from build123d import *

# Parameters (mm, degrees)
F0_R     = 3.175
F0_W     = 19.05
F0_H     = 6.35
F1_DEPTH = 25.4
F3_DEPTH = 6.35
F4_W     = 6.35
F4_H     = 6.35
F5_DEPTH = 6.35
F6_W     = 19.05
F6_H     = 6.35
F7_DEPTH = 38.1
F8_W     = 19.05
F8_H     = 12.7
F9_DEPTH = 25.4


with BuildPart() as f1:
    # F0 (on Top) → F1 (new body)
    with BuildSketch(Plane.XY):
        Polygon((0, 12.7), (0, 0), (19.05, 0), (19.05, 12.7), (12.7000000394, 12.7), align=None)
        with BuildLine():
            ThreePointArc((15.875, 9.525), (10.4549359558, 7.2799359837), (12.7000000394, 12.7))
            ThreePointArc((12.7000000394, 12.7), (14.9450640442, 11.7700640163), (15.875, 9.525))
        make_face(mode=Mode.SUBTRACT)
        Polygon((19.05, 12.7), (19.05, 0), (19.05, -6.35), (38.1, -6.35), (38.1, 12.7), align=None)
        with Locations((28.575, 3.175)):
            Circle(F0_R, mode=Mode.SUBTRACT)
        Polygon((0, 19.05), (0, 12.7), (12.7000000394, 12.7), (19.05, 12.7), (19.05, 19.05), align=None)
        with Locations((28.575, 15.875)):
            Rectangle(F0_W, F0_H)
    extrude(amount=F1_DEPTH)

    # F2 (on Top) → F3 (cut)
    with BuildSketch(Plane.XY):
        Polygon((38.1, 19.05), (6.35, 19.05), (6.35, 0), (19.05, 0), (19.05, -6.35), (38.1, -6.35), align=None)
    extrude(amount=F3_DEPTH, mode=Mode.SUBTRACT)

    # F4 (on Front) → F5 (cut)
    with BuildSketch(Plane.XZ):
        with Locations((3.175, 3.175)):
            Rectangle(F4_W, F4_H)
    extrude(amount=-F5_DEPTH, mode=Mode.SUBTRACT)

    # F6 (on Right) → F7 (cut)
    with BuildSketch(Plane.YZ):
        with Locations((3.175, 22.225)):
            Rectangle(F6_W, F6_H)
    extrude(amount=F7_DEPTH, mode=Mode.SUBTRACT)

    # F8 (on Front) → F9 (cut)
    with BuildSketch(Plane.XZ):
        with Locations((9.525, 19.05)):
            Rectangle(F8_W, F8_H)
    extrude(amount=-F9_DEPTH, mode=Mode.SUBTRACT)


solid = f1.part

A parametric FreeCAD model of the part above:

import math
import FreeCAD as App
import Part
import Sketcher
from FreeCAD import Vector
Q = App.Units.Quantity


def add_polygon(sketch, points):
    """Adds a closed chain of lines whose ends are joined by coincident constraints."""
    first, n = sketch.GeometryCount, len(points)
    for a, b in zip(points, points[1:] + points[:1]):
        sketch.addGeometry(Part.LineSegment(App.Vector(*a, 0), App.Vector(*b, 0)), False)
    for i in range(n):
        sketch.addConstraint(Sketcher.Constraint("Coincident", first + i, 2, first + (i + 1) % n, 1))

doc = App.newDocument("Part")
body = doc.addObject("PartDesign::Body", "Body")

# Sketch on XY plane
sketch1 = doc.addObject("Sketcher::SketchObject", "Sketch")
body.addObject(sketch1)
sketch1.AttachmentSupport = (doc.XY_Plane, [""])
sketch1.MapMode = "FlatFace"
add_polygon(sketch1, [(38.1, -6.3), (38.1, 19.1), (0, 19.1), (0, 0), (19.1, 0), (19.1, -6.3)])  # lines 0-5
sketch1.addGeometry(Part.Circle(Vector(28.6, 3.2, 0), Vector(0, 0, 1), 3.2), False)  # 6
sketch1.addGeometry(Part.ArcOfCircle(Part.Circle(Vector(12.7, 9.5, 0), Vector(0, 0, 1), 3.2), math.radians(90), math.radians(360)), False)  # 7
sketch1.addGeometry(Part.ArcOfCircle(Part.Circle(Vector(12.7, 9.5, 0), Vector(0, 0, 1), 3.2), math.radians(0), math.radians(90)), False)  # 8
sketch1.addConstraint([
    Sketcher.Constraint("Tangent", 7, 1, 8, 2),
    Sketcher.Constraint("Coincident", 8, 1, 7, 2),
    Sketcher.Constraint("Vertical", 0),
    Sketcher.Constraint("Horizontal", 1),
    Sketcher.Constraint("Vertical", 2),
    Sketcher.Constraint("Horizontal", 3),
    Sketcher.Constraint("Vertical", 4),
    Sketcher.Constraint("Horizontal", 5),
    Sketcher.Constraint("Coincident", 2, 2, -1, 1),
    Sketcher.Constraint("Equal", 6, 7),
    Sketcher.Constraint("Horizontal", 7, 3, 8, 1),
    Sketcher.Constraint("Vertical", 8, 3, 7, 1),
    Sketcher.Constraint("Equal", 3, 5),
    Sketcher.Constraint("Equal", 5, 2),
    Sketcher.Constraint("Diameter", 6, Q("0.25 in")),
    Sketcher.Constraint("DistanceY", 0, 1, 0, 2, Q("1 in")),
    Sketcher.Constraint("DistanceX", 1, 2, 1, 1, Q("1.5 in")),
    Sketcher.Constraint("DistanceX", 7, 3, 0, 2, Q("1 in")),
    Sketcher.Constraint("DistanceY", -1, 1, 7, 1, Q("0.5 in")),
    Sketcher.Constraint("DistanceX", 8, 1, 6, 3, Q("0.5 in")),
    Sketcher.Constraint("DistanceY", 6, 3, 7, 3, Q("0.25 in")),
])
pad1 = doc.addObject("PartDesign::Pad", "Pad")
body.addObject(pad1)
pad1.Profile = sketch1
pad1.Length = Q("1 in")

# Sketch on XY plane
sketch2 = doc.addObject("Sketcher::SketchObject", "Sketch001")
body.addObject(sketch2)
sketch2.AttachmentSupport = (doc.XY_Plane, [""])
sketch2.MapMode = "FlatFace"
add_polygon(sketch2, [(38, 19), (6, 19), (6, 0), (19, 0), (19, -6), (38, -6)])  # lines 0-5
sketch2.addConstraint([
    Sketcher.Constraint("Horizontal", 0),
    Sketcher.Constraint("Vertical", 1),
    Sketcher.Constraint("Horizontal", 2),
    Sketcher.Constraint("Vertical", 3),
    Sketcher.Constraint("Horizontal", 4),
    Sketcher.Constraint("Vertical", 5),
    Sketcher.Constraint("PointOnObject", 1, 2, -1),
    Sketcher.Constraint("Equal", 4, 1),
    Sketcher.Constraint("DistanceY", 5, 1, 5, 2, Q("1 in")),
    Sketcher.Constraint("DistanceX", 2, 1, 2, 2, Q("0.5 in")),
    Sketcher.Constraint("DistanceX", 0, 2, 0, 1, Q("1.25 in")),
    Sketcher.Constraint("DistanceX", -1, 1, 4, 2, Q("1.5 in")),
])
pocket1 = doc.addObject("PartDesign::Pocket", "Pocket")
body.addObject(pocket1)
pocket1.Profile = sketch2
pocket1.Length = Q("0.25 in")
pocket1.Reversed = True

# Sketch on XZ plane
sketch3 = doc.addObject("Sketcher::SketchObject", "Sketch002")
body.addObject(sketch3)
sketch3.AttachmentSupport = (doc.XZ_Plane, [""])
sketch3.MapMode = "FlatFace"
add_polygon(sketch3, [(0, 6), (0, 0), (6, 0), (6, 6)])  # lines 0-3
sketch3.addConstraint([
    Sketcher.Constraint("Vertical", 0),
    Sketcher.Constraint("Horizontal", 1),
    Sketcher.Constraint("Vertical", 2),
    Sketcher.Constraint("Horizontal", 3),
    Sketcher.Constraint("Coincident", 0, 2, -1, 1),
    Sketcher.Constraint("Equal", 3, 0),
    Sketcher.Constraint("DistanceX", 1, 1, 1, 2, Q("0.25 in")),
])
pocket2 = doc.addObject("PartDesign::Pocket", "Pocket001")
body.addObject(pocket2)
pocket2.Profile = sketch3
pocket2.Length = Q("0.25 in")

# Sketch on YZ plane
sketch4 = doc.addObject("Sketcher::SketchObject", "Sketch003")
body.addObject(sketch4)
sketch4.AttachmentSupport = (doc.YZ_Plane, [""])
sketch4.MapMode = "FlatFace"
add_polygon(sketch4, [(-6, 25), (-6, 19), (13, 19), (13, 25)])  # lines 0-3
sketch4.addConstraint([
    Sketcher.Constraint("Vertical", 0),
    Sketcher.Constraint("Horizontal", 1),
    Sketcher.Constraint("Vertical", 2),
    Sketcher.Constraint("Horizontal", 3),
    Sketcher.Constraint("DistanceY", -1, 1, 2, 2, Q("1 in")),
    Sketcher.Constraint("DistanceX", 1, 1, 1, 2, Q("0.75 in")),
    Sketcher.Constraint("DistanceY", 0, 2, 0, 1, Q("0.25 in")),
    Sketcher.Constraint("DistanceX", -1, 1, 1, 2, Q("0.5 in")),
])
pocket3 = doc.addObject("PartDesign::Pocket", "Pocket002")
body.addObject(pocket3)
pocket3.Profile = sketch4
pocket3.Length = Q("1.5 in")
pocket3.Reversed = True

# Sketch on XZ plane
sketch5 = doc.addObject("Sketcher::SketchObject", "Sketch004")
body.addObject(sketch5)
sketch5.AttachmentSupport = (doc.XZ_Plane, [""])
sketch5.MapMode = "FlatFace"
add_polygon(sketch5, [(0, 25), (0, 13), (19, 13), (19, 25)])  # lines 0-3
sketch5.addConstraint([
    Sketcher.Constraint("Vertical", 0),
    Sketcher.Constraint("Horizontal", 1),
    Sketcher.Constraint("Vertical", 2),
    Sketcher.Constraint("Horizontal", 3),
    Sketcher.Constraint("PointOnObject", 0, 2, -2),
    Sketcher.Constraint("DistanceY", 0, 2, 0, 1, Q("0.5 in")),
    Sketcher.Constraint("DistanceY", -1, 1, 2, 2, Q("1 in")),
    Sketcher.Constraint("DistanceX", 1, 1, 1, 2, Q("0.75 in")),
])
pocket4 = doc.addObject("PartDesign::Pocket", "Pocket003")
body.addObject(pocket4)
pocket4.Profile = sketch5
pocket4.Length = Q("1 in")

doc.recompute()
